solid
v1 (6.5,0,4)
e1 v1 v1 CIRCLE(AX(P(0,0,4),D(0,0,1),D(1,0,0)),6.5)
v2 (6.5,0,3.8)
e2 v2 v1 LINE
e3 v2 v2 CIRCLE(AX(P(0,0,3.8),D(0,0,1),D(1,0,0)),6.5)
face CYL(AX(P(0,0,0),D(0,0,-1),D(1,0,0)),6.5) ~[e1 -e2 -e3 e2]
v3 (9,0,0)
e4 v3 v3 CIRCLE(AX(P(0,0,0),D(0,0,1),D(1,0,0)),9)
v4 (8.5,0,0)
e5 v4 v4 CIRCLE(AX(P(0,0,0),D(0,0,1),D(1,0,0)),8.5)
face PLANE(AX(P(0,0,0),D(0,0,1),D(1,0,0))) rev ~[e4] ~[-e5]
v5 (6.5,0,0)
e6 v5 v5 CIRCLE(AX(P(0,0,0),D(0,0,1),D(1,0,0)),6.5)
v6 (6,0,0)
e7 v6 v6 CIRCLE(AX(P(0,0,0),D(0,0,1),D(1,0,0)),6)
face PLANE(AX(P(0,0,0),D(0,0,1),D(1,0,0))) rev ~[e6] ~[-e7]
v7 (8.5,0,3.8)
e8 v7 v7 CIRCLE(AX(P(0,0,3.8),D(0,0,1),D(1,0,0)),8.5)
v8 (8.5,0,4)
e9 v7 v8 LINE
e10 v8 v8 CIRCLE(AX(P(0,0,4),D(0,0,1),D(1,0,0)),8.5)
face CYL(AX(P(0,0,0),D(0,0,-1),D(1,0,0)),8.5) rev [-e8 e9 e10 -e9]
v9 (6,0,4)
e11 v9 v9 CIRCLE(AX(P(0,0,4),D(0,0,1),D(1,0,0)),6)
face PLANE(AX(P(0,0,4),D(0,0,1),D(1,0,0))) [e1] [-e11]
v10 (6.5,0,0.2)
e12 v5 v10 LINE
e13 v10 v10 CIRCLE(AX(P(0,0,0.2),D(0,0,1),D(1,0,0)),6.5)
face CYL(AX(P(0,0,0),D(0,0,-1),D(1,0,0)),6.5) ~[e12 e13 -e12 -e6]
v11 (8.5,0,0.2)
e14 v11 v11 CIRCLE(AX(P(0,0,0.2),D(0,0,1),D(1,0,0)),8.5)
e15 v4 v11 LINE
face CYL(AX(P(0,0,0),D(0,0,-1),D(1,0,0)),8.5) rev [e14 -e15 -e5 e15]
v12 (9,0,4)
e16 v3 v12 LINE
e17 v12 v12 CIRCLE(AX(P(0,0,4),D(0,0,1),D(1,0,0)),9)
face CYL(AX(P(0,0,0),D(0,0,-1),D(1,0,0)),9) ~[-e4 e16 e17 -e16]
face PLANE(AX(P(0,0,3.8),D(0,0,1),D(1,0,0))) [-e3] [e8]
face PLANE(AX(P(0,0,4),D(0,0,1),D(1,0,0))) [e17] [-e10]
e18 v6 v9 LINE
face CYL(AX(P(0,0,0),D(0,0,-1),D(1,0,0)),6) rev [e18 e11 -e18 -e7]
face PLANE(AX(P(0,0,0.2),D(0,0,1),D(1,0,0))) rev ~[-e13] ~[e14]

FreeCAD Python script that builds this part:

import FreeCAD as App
import Part
import Sketcher
from FreeCAD import Vector
Q = App.Units.Quantity

doc = App.newDocument("Part")
params = doc.addObject("Spreadsheet::Sheet", "Params")
for row, (alias, value) in enumerate([
    ("sketch1_diameter", "18 mm"),
    ("sketch1_diameter2", "12 mm"),
    ("sketch1_diameter3", "17 mm"),
    ("sketch1_diameter4", "13 mm"),
    ("pad1_length", "4 mm"),
    ("sketch2_diameter", "17 mm"),
    ("sketch2_diameter2", "13 mm"),
    ("pad2_length", "3.6 mm"),
], start=1):
    params.set(f"A{row}", alias)
    params.set(f"B{row}", "=" + value)
    params.setAlias(f"B{row}", alias)

body = doc.addObject("PartDesign::Body", "Body")
body.AllowCompound = True

# Sketch on XY plane
sketch1 = doc.addObject("Sketcher::SketchObject", "Sketch")
body.addObject(sketch1)
sketch1.AttachmentSupport = (doc.XY_Plane, [""])
sketch1.MapMode = "FlatFace"
sketch1.addGeometry([
    Part.Circle(Vector(0, 0, 0), Vector(0, 0, 1), 9),
    Part.Circle(Vector(0, 0, 0), Vector(0, 0, 1), 8),
    Part.Circle(Vector(0, 0, 0), Vector(0, 0, 1), 6),
    Part.Circle(Vector(0, 0, 0), Vector(0, 0, 1), 6),
], False)
sketch1.addConstraint([
    Sketcher.Constraint("Coincident", 0, 3, -1, 1),
    Sketcher.Constraint("Coincident", 1, 3, -1, 1),
    Sketcher.Constraint("Coincident", 2, 3, -1, 1),
    Sketcher.Constraint("Coincident", 3, 3, -1, 1),
    Sketcher.Constraint("Diameter", 0, Q("18 mm")),
    Sketcher.Constraint("Diameter", 3, Q("12 mm")),
    Sketcher.Constraint("Diameter", 1, Q("17 mm")),
    Sketcher.Constraint("Diameter", 2, Q("13 mm")),
])
sketch1.setExpression("Constraints[4]", "Params.sketch1_diameter")
sketch1.setExpression("Constraints[5]", "Params.sketch1_diameter2")
sketch1.setExpression("Constraints[6]", "Params.sketch1_diameter3")
sketch1.setExpression("Constraints[7]", "Params.sketch1_diameter4")
pad1 = doc.addObject("PartDesign::Pad", "Pad")
body.addObject(pad1)
pad1.Profile = sketch1
pad1.setExpression("Length", "Params.pad1_length")

# Sketch on XY plane
sketch2 = doc.addObject("Sketcher::SketchObject", "Sketch001")
body.addObject(sketch2)
sketch2.AttachmentSupport = (doc.XY_Plane, [""])
sketch2.MapMode = "FlatFace"
sketch2.AttachmentOffset = App.Placement(Vector(0, 0, 0.2), App.Rotation())
sketch2.addGeometry([
    Part.Circle(Vector(0, 0, 0), Vector(0, 0, 1), 8),
    Part.Circle(Vector(0, 0, 0), Vector(0, 0, 1), 6),
], False)
sketch2.addConstraint([
    Sketcher.Constraint("Coincident", 0, 3, -1, 1),
    Sketcher.Constraint("Coincident", 1, 3, -1, 1),
    Sketcher.Constraint("Diameter", 0, Q("17 mm")),
    Sketcher.Constraint("Diameter", 1, Q("13 mm")),
])
sketch2.setExpression("Constraints[2]", "Params.sketch2_diameter")
sketch2.setExpression("Constraints[3]", "Params.sketch2_diameter2")
pad2 = doc.addObject("PartDesign::Pad", "Pad001")
body.addObject(pad2)
pad2.Profile = sketch2
pad2.setExpression("Length", "Params.pad2_length")

doc.recompute()
